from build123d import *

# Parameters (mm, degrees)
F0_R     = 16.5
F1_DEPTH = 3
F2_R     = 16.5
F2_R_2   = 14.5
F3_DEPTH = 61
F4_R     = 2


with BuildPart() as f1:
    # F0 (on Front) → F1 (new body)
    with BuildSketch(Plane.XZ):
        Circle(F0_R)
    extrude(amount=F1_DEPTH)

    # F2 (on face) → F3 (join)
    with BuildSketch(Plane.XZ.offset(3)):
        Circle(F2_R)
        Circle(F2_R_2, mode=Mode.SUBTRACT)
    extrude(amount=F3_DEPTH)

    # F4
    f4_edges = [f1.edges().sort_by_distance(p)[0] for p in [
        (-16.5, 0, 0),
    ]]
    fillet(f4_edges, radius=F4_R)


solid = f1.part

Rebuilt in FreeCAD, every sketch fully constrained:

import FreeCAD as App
import Part
import Sketcher
from FreeCAD import Vector


def edges_at(feature, points):
    """Names of the edges that pass closest to the given points."""
    edges = feature.Shape.Edges
    near = lambda p: min(range(len(edges)), key=lambda i: edges[i].distToShape(Part.Vertex(*p))[0])
    return sorted({f"Edge{near(p) + 1}" for p in points})

doc = App.newDocument("Part")
body = doc.addObject("PartDesign::Body", "Body")

# Sketch on XZ plane
sketch1 = body.newObject("Sketcher::SketchObject", "Sketch")
sketch1.AttachmentSupport = (doc.getObject("XZ_Plane"), [""])
sketch1.MapMode = "FlatFace"
sketch1.addGeometry(Part.Circle(Vector(0, 0, 0), Vector(0, 0, 1), 16), False)
sketch1.addConstraint([
    Sketcher.Constraint("Coincident", 0, 3, -1, 1),
    Sketcher.Constraint("Diameter", 0, 33.0),
])
pad1 = body.newObject("PartDesign::Pad", "Pad")
pad1.Profile = sketch1
pad1.Length = 3

# Sketch on XZ plane
sketch2 = body.newObject("Sketcher::SketchObject", "Sketch001")
sketch2.AttachmentSupport = (doc.getObject("XZ_Plane"), [""])
sketch2.MapMode = "FlatFace"
sketch2.AttachmentOffset = App.Placement(Vector(0, 0, 3), App.Rotation())
sketch2.addGeometry([
    Part.Circle(Vector(0, 0, 0), Vector(0, 0, 1), 16),
    Part.Circle(Vector(0, 0, 0), Vector(0, 0, 1), 14),
], False)
sketch2.addConstraint([
    Sketcher.Constraint("Coincident", 0, 3, -1, 1),
    Sketcher.Constraint("Coincident", 1, 3, -1, 1),
    Sketcher.Constraint("Diameter", 0, 33.0),
    Sketcher.Constraint("Diameter", 1, 29.0),
])
pad2 = body.newObject("PartDesign::Pad", "Pad001")
pad2.Profile = sketch2
pad2.Length = 61
doc.recompute()

fillet = body.newObject("PartDesign::Fillet", "Fillet")
fillet.Base = (pad2, edges_at(pad2, [(-16.5, 0, 0)]))
fillet.Radius = 2

doc.recompute()
